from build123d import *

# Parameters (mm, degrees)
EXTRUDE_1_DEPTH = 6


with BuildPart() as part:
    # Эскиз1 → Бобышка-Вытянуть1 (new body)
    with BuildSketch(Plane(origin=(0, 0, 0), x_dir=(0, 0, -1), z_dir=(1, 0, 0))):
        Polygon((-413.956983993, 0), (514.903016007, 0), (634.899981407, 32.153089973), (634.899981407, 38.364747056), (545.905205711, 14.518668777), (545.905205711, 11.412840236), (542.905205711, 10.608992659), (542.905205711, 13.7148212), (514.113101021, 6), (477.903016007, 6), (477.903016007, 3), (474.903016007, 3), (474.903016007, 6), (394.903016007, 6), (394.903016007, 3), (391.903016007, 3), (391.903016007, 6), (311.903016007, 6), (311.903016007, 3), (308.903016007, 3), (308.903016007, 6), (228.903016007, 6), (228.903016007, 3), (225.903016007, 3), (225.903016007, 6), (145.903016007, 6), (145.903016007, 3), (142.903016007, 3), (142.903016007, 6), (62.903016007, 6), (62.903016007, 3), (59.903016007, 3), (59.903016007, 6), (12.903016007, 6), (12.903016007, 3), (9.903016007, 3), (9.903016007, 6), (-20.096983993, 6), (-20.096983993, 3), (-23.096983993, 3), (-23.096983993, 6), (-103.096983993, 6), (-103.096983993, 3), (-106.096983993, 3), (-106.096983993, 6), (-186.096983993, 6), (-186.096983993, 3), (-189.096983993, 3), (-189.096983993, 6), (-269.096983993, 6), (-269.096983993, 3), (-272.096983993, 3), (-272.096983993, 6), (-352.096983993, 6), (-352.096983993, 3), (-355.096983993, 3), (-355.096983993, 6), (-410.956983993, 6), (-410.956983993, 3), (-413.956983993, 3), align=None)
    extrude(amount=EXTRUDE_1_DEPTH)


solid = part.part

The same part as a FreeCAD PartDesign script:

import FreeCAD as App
import Part
import Sketcher
from FreeCAD import Vector
Q = App.Units.Quantity

doc = App.newDocument("Part")
params = doc.addObject("Spreadsheet::Sheet", "Params")
for row, (alias, value) in enumerate([
    ("sketch1_width", "3 mm"),
    ("sketch1_height", "80 mm"),
    ("sketch1_height2", "47 mm"),
    ("sketch1_height3", "30 mm"),
    ("sketch1_height4", "928.86 mm"),
    ("pad1_length", "6 mm"),
], start=1):
    params.set(f"A{row}", alias)
    params.set(f"B{row}", "=" + value)
    params.setAlias(f"B{row}", alias)

body = doc.addObject("PartDesign::Body", "Body")

# Sketch on YZ plane
sketch1 = body.newObject("Sketcher::SketchObject", "Sketch")
sketch1.AttachmentSupport = (doc.getObject("YZ_Plane"), [""])
sketch1.MapMode = "FlatFace"
sketch1.addGeometry([
    Part.LineSegment(Vector(0, 414, 0), Vector(0, -514.9, 0)),  # 0
    Part.LineSegment(Vector(0, -514.9, 0), Vector(32.2, -634.9, 0)),  # 1
    Part.LineSegment(Vector(32.2, -634.9, 0), Vector(38.4, -634.9, 0)),  # 2
    Part.LineSegment(Vector(38.4, -634.9, 0), Vector(14.5, -545.9, 0)),  # 3
    Part.LineSegment(Vector(14.5, -545.9, 0), Vector(11.4, -545.9, 0)),  # 4
    Part.LineSegment(Vector(11.4, -545.9, 0), Vector(10.6, -542.9, 0)),  # 5
    Part.LineSegment(Vector(10.6, -542.9, 0), Vector(13.7, -542.9, 0)),  # 6
    Part.LineSegment(Vector(13.7, -542.9, 0), Vector(6, -514.1, 0)),  # 7
    Part.LineSegment(Vector(6, -514.1, 0), Vector(6, -477.9, 0)),  # 8
    Part.LineSegment(Vector(6, -477.9, 0), Vector(3, -477.9, 0)),  # 9
    Part.LineSegment(Vector(3, -477.9, 0), Vector(3, -474.9, 0)),  # 10
    Part.LineSegment(Vector(3, -474.9, 0), Vector(6, -474.9, 0)),  # 11
    Part.LineSegment(Vector(6, -474.9, 0), Vector(6, -394.9, 0)),  # 12
    Part.LineSegment(Vector(6, -394.9, 0), Vector(3, -394.9, 0)),  # 13
    Part.LineSegment(Vector(3, -394.9, 0), Vector(3, -391.9, 0)),  # 14
    Part.LineSegment(Vector(3, -391.9, 0), Vector(6, -391.9, 0)),  # 15
    Part.LineSegment(Vector(6, -391.9, 0), Vector(6, -311.9, 0)),  # 16
    Part.LineSegment(Vector(6, -311.9, 0), Vector(3, -311.9, 0)),  # 17
    Part.LineSegment(Vector(3, -311.9, 0), Vector(3, -308.9, 0)),  # 18
    Part.LineSegment(Vector(3, -308.9, 0), Vector(6, -308.9, 0)),  # 19
    Part.LineSegment(Vector(6, -308.9, 0), Vector(6, -228.9, 0)),  # 20
    Part.LineSegment(Vector(6, -228.9, 0), Vector(3, -228.9, 0)),  # 21
    Part.LineSegment(Vector(3, -228.9, 0), Vector(3, -225.9, 0)),  # 22
    Part.LineSegment(Vector(3, -225.9, 0), Vector(6, -225.9, 0)),  # 23
    Part.LineSegment(Vector(6, -225.9, 0), Vector(6, -145.9, 0)),  # 24
    Part.LineSegment(Vector(6, -145.9, 0), Vector(3, -145.9, 0)),  # 25
    Part.LineSegment(Vector(3, -145.9, 0), Vector(3, -142.9, 0)),  # 26
    Part.LineSegment(Vector(3, -142.9, 0), Vector(6, -142.9, 0)),  # 27
    Part.LineSegment(Vector(6, -142.9, 0), Vector(6, -62.9, 0)),  # 28
    Part.LineSegment(Vector(6, -62.9, 0), Vector(3, -62.9, 0)),  # 29
    Part.LineSegment(Vector(3, -62.9, 0), Vector(3, -59.9, 0)),  # 30
    Part.LineSegment(Vector(3, -59.9, 0), Vector(6, -59.9, 0)),  # 31
    Part.LineSegment(Vector(6, -59.9, 0), Vector(6, -12.9, 0)),  # 32
    Part.LineSegment(Vector(6, -12.9, 0), Vector(3, -12.9, 0)),  # 33
    Part.LineSegment(Vector(3, -12.9, 0), Vector(3, -9.9, 0)),  # 34
    Part.LineSegment(Vector(3, -9.9, 0), Vector(6, -9.9, 0)),  # 35
    Part.LineSegment(Vector(6, -9.9, 0), Vector(6, 20.1, 0)),  # 36
    Part.LineSegment(Vector(6, 20.1, 0), Vector(3, 20.1, 0)),  # 37
    Part.LineSegment(Vector(3, 20.1, 0), Vector(3, 23.1, 0)),  # 38
    Part.LineSegment(Vector(3, 23.1, 0), Vector(6, 23.1, 0)),  # 39
    Part.LineSegment(Vector(6, 23.1, 0), Vector(6, 103.1, 0)),  # 40
    Part.LineSegment(Vector(6, 103.1, 0), Vector(3, 103.1, 0)),  # 41
    Part.LineSegment(Vector(3, 103.1, 0), Vector(3, 106.1, 0)),  # 42
    Part.LineSegment(Vector(3, 106.1, 0), Vector(6, 106.1, 0)),  # 43
    Part.LineSegment(Vector(6, 106.1, 0), Vector(6, 186.1, 0)),  # 44
    Part.LineSegment(Vector(6, 186.1, 0), Vector(3, 186.1, 0)),  # 45
    Part.LineSegment(Vector(3, 186.1, 0), Vector(3, 189.1, 0)),  # 46
    Part.LineSegment(Vector(3, 189.1, 0), Vector(6, 189.1, 0)),  # 47
    Part.LineSegment(Vector(6, 189.1, 0), Vector(6, 269.1, 0)),  # 48
    Part.LineSegment(Vector(6, 269.1, 0), Vector(3, 269.1, 0)),  # 49
    Part.LineSegment(Vector(3, 269.1, 0), Vector(3, 272.1, 0)),  # 50
    Part.LineSegment(Vector(3, 272.1, 0), Vector(6, 272.1, 0)),  # 51
    Part.LineSegment(Vector(6, 272.1, 0), Vector(6, 352.1, 0)),  # 52
    Part.LineSegment(Vector(6, 352.1, 0), Vector(3, 352.1, 0)),  # 53
    Part.LineSegment(Vector(3, 352.1, 0), Vector(3, 355.1, 0)),  # 54
    Part.LineSegment(Vector(3, 355.1, 0), Vector(6, 355.1, 0)),  # 55
    Part.LineSegment(Vector(6, 355.1, 0), Vector(6, 411, 0)),  # 56
    Part.LineSegment(Vector(6, 411, 0), Vector(3, 411, 0)),  # 57
    Part.LineSegment(Vector(3, 411, 0), Vector(3, 414, 0)),  # 58
    Part.LineSegment(Vector(3, 414, 0), Vector(0, 414, 0)),  # 59
], False)
sketch1.addConstraint([
    Sketcher.Constraint("Coincident", 0, 2, 1, 1),
    Sketcher.Constraint("Coincident", 1, 2, 2, 1),
    Sketcher.Constraint("Coincident", 2, 2, 3, 1),
    Sketcher.Constraint("Coincident", 3, 2, 4, 1),
    Sketcher.Constraint("Coincident", 4, 2, 5, 1),
    Sketcher.Constraint("Coincident", 5, 2, 6, 1),
    Sketcher.Constraint("Coincident", 6, 2, 7, 1),
    Sketcher.Constraint("Coincident", 7, 2, 8, 1),
    Sketcher.Constraint("Coincident", 8, 2, 9, 1),
    Sketcher.Constraint("Coincident", 9, 2, 10, 1),
    Sketcher.Constraint("Coincident", 10, 2, 11, 1),
    Sketcher.Constraint("Coincident", 11, 2, 12, 1),
    Sketcher.Constraint("Coincident", 12, 2, 13, 1),
    Sketcher.Constraint("Coincident", 13, 2, 14, 1),
    Sketcher.Constraint("Coincident", 14, 2, 15, 1),
    Sketcher.Constraint("Coincident", 15, 2, 16, 1),
    Sketcher.Constraint("Coincident", 16, 2, 17, 1),
    Sketcher.Constraint("Coincident", 17, 2, 18, 1),
    Sketcher.Constraint("Coincident", 18, 2, 19, 1),
    Sketcher.Constraint("Coincident", 19, 2, 20, 1),
    Sketcher.Constraint("Coincident", 20, 2, 21, 1),
    Sketcher.Constraint("Coincident", 21, 2, 22, 1),
    Sketcher.Constraint("Coincident", 22, 2, 23, 1),
    Sketcher.Constraint("Coincident", 23, 2, 24, 1),
    Sketcher.Constraint("Coincident", 24, 2, 25, 1),
    Sketcher.Constraint("Coincident", 25, 2, 26, 1),
    Sketcher.Constraint("Coincident", 26, 2, 27, 1),
    Sketcher.Constraint("Coincident", 27, 2, 28, 1),
    Sketcher.Constraint("Coincident", 28, 2, 29, 1),
    Sketcher.Constraint("Coincident", 29, 2, 30, 1),
    Sketcher.Constraint("Coincident", 30, 2, 31, 1),
    Sketcher.Constraint("Coincident", 31, 2, 32, 1),
    Sketcher.Constraint("Coincident", 32, 2, 33, 1),
    Sketcher.Constraint("Coincident", 33, 2, 34, 1),
    Sketcher.Constraint("Coincident", 34, 2, 35, 1),
    Sketcher.Constraint("Coincident", 35, 2, 36, 1),
    Sketcher.Constraint("Coincident", 36, 2, 37, 1),
    Sketcher.Constraint("Coincident", 37, 2, 38, 1),
    Sketcher.Constraint("Coincident", 38, 2, 39, 1),
    Sketcher.Constraint("Coincident", 39, 2, 40, 1),
    Sketcher.Constraint("Coincident", 40, 2, 41, 1),
    Sketcher.Constraint("Coincident", 41, 2, 42, 1),
    Sketcher.Constraint("Coincident", 42, 2, 43, 1),
    Sketcher.Constraint("Coincident", 43, 2, 44, 1),
    Sketcher.Constraint("Coincident", 44, 2, 45, 1),
    Sketcher.Constraint("Coincident", 45, 2, 46, 1),
    Sketcher.Constraint("Coincident", 46, 2, 47, 1),
    Sketcher.Constraint("Coincident", 47, 2, 48, 1),
    Sketcher.Constraint("Coincident", 48, 2, 49, 1),
    Sketcher.Constraint("Coincident", 49, 2, 50, 1),
    Sketcher.Constraint("Coincident", 50, 2, 51, 1),
    Sketcher.Constraint("Coincident", 51, 2, 52, 1),
    Sketcher.Constraint("Coincident", 52, 2, 53, 1),
    Sketcher.Constraint("Coincident", 53, 2, 54, 1),
    Sketcher.Constraint("Coincident", 54, 2, 55, 1),
    Sketcher.Constraint("Coincident", 55, 2, 56, 1),
    Sketcher.Constraint("Coincident", 56, 2, 57, 1),
    Sketcher.Constraint("Coincident", 57, 2, 58, 1),
    Sketcher.Constraint("Coincident", 58, 2, 59, 1),
    Sketcher.Constraint("Coincident", 59, 2, 0, 1),
    Sketcher.Constraint("Vertical", 0),
    Sketcher.Constraint("Horizontal", 2),
    Sketcher.Constraint("Horizontal", 4),
    Sketcher.Constraint("Horizontal", 6),
    Sketcher.Constraint("Vertical", 8),
    Sketcher.Constraint("Horizontal", 9),
    Sketcher.Constraint("Vertical", 10),
    Sketcher.Constraint("Horizontal", 11),
    Sketcher.Constraint("Vertical", 12),
    Sketcher.Constraint("Horizontal", 13),
    Sketcher.Constraint("Vertical", 14),
    Sketcher.Constraint("Horizontal", 15),
    Sketcher.Constraint("Vertical", 16),
    Sketcher.Constraint("Horizontal", 17),
    Sketcher.Constraint("Vertical", 18),
    Sketcher.Constraint("Horizontal", 19),
    Sketcher.Constraint("Vertical", 20),
    Sketcher.Constraint("Horizontal", 21),
    Sketcher.Constraint("Vertical", 22),
    Sketcher.Constraint("Horizontal", 23),
    Sketcher.Constraint("Vertical", 24),
    Sketcher.Constraint("Horizontal", 25),
    Sketcher.Constraint("Vertical", 26),
    Sketcher.Constraint("Horizontal", 27),
    Sketcher.Constraint("Vertical", 28),
    Sketcher.Constraint("Horizontal", 29),
    Sketcher.Constraint("Vertical", 30),
    Sketcher.Constraint("Horizontal", 31),
    Sketcher.Constraint("Vertical", 32),
    Sketcher.Constraint("Horizontal", 33),
    Sketcher.Constraint("Vertical", 34),
    Sketcher.Constraint("Horizontal", 35),
    Sketcher.Constraint("Vertical", 36),
    Sketcher.Constraint("Horizontal", 37),
    Sketcher.Constraint("Vertical", 38),
    Sketcher.Constraint("Horizontal", 39),
    Sketcher.Constraint("Vertical", 40),
    Sketcher.Constraint("Horizontal", 41),
    Sketcher.Constraint("Vertical", 42),
    Sketcher.Constraint("Horizontal", 43),
    Sketcher.Constraint("Vertical", 44),
    Sketcher.Constraint("Horizontal", 45),
    Sketcher.Constraint("Vertical", 46),
    Sketcher.Constraint("Horizontal", 47),
    Sketcher.Constraint("Vertical", 48),
    Sketcher.Constraint("Horizontal", 49),
    Sketcher.Constraint("Vertical", 50),
    Sketcher.Constraint("Horizontal", 51),
    Sketcher.Constraint("Vertical", 52),
    Sketcher.Constraint("Horizontal", 53),
    Sketcher.Constraint("Vertical", 54),
    Sketcher.Constraint("Horizontal", 55),
    Sketcher.Constraint("Vertical", 56),
    Sketcher.Constraint("Horizontal", 57),
    Sketcher.Constraint("Vertical", 58),
    Sketcher.Constraint("Horizontal", 59),
    Sketcher.Constraint("PointOnObject", 0, 2, -2),
    Sketcher.Constraint("Parallel", 1, 3),
    Sketcher.Constraint("Parallel", 3, 5),
    Sketcher.Constraint("Parallel", 5, 7),
    Sketcher.Constraint("Vertical", 8, 2, 11, 2),
    Sketcher.Constraint("Vertical", 10, 2, 13, 2),
    Sketcher.Constraint("Vertical", 12, 2, 15, 2),
    Sketcher.Constraint("Vertical", 14, 2, 17, 2),
    Sketcher.Constraint("Vertical", 16, 2, 19, 2),
    Sketcher.Constraint("Vertical", 18, 2, 21, 2),
    Sketcher.Constraint("Vertical", 20, 2, 23, 2),
    Sketcher.Constraint("Vertical", 22, 2, 25, 2),
    Sketcher.Constraint("Vertical", 24, 2, 27, 2),
    Sketcher.Constraint("Vertical", 26, 2, 29, 2),
    Sketcher.Constraint("Vertical", 28, 2, 31, 2),
    Sketcher.Constraint("Vertical", 30, 2, 33, 2),
    Sketcher.Constraint("Vertical", 32, 2, 35, 2),
    Sketcher.Constraint("Vertical", 34, 2, 37, 2),
    Sketcher.Constraint("Vertical", 36, 2, 39, 2),
    Sketcher.Constraint("Vertical", 38, 2, 41, 2),
    Sketcher.Constraint("Vertical", 40, 2, 43, 2),
    Sketcher.Constraint("Vertical", 42, 2, 45, 2),
    Sketcher.Constraint("Vertical", 44, 2, 47, 2),
    Sketcher.Constraint("Vertical", 46, 2, 49, 2),
    Sketcher.Constraint("Vertical", 48, 2, 51, 2),
    Sketcher.Constraint("Vertical", 50, 2, 53, 2),
    Sketcher.Constraint("Vertical", 52, 2, 55, 2),
    Sketcher.Constraint("Vertical", 54, 2, 57, 2),
    Sketcher.Constraint("Equal", 4, 6),
    Sketcher.Constraint("Equal", 57, 59),
    Sketcher.Constraint("Equal", 59, 10),
    Sketcher.Constraint("Equal", 10, 14),
    Sketcher.Constraint("Equal", 12, 16),
    Sketcher.Constraint("Equal", 14, 18),
    Sketcher.Constraint("Equal", 16, 20),
    Sketcher.Constraint("Equal", 18, 22),
    Sketcher.Constraint("Equal", 20, 24),
    Sketcher.Constraint("Equal", 22, 26),
    Sketcher.Constraint("Equal", 24, 28),
    Sketcher.Constraint("Equal", 26, 30),
    Sketcher.Constraint("Equal", 30, 34),
    Sketcher.Constraint("Equal", 34, 38),
    Sketcher.Constraint("Equal", 28, 40),
    Sketcher.Constraint("Equal", 38, 42),
    Sketcher.Constraint("Equal", 40, 44),
    Sketcher.Constraint("Equal", 42, 46),
    Sketcher.Constraint("Equal", 44, 48),
    Sketcher.Constraint("Equal", 46, 50),
    Sketcher.Constraint("Equal", 48, 52),
    Sketcher.Constraint("Equal", 50, 54),
    Sketcher.Constraint("Equal", 54, 58),
    Sketcher.Constraint("DistanceX", 9, 2, 9, 1, 3.0),
    Sketcher.Constraint("DistanceY", 12, 1, 12, 2, 80.0),
    Sketcher.Constraint("DistanceY", 32, 1, 32, 2, 47.0),
    Sketcher.Constraint("DistanceY", 36, 1, 36, 2, 30.0),
    Sketcher.Constraint("Angle", 1, Q("-75 deg")),
    Sketcher.Constraint("DistanceY", 4, 2, 5, 2, 3.0),
    Sketcher.Constraint("DistanceY", 0, 2, 8, 2, 37.0),
    Sketcher.Constraint("DistanceY", 0, 2, 0, 1, 928.86),
    Sketcher.Constraint("Distance", 1, 124.23),
    Sketcher.Constraint("DistanceX", 4, 2, 4, 1, 3.105829),
    Sketcher.Constraint("DistanceY", 7, 2, -1, 1, 514.113101),
    Sketcher.Constraint("Distance", 3, 92.134171),
    Sketcher.Constraint("Distance", 7, 29.80778),
])
sketch1.setExpression("Constraints[167]", "Params.sketch1_width")
sketch1.setExpression("Constraints[168]", "Params.sketch1_height")
sketch1.setExpression("Constraints[169]", "Params.sketch1_height2")
sketch1.setExpression("Constraints[170]", "Params.sketch1_height3")
sketch1.setExpression("Constraints[174]", "Params.sketch1_height4")
pad1 = body.newObject("PartDesign::Pad", "Pad")
pad1.Profile = sketch1
pad1.setExpression("Length", "Params.pad1_length")

doc.recompute()
